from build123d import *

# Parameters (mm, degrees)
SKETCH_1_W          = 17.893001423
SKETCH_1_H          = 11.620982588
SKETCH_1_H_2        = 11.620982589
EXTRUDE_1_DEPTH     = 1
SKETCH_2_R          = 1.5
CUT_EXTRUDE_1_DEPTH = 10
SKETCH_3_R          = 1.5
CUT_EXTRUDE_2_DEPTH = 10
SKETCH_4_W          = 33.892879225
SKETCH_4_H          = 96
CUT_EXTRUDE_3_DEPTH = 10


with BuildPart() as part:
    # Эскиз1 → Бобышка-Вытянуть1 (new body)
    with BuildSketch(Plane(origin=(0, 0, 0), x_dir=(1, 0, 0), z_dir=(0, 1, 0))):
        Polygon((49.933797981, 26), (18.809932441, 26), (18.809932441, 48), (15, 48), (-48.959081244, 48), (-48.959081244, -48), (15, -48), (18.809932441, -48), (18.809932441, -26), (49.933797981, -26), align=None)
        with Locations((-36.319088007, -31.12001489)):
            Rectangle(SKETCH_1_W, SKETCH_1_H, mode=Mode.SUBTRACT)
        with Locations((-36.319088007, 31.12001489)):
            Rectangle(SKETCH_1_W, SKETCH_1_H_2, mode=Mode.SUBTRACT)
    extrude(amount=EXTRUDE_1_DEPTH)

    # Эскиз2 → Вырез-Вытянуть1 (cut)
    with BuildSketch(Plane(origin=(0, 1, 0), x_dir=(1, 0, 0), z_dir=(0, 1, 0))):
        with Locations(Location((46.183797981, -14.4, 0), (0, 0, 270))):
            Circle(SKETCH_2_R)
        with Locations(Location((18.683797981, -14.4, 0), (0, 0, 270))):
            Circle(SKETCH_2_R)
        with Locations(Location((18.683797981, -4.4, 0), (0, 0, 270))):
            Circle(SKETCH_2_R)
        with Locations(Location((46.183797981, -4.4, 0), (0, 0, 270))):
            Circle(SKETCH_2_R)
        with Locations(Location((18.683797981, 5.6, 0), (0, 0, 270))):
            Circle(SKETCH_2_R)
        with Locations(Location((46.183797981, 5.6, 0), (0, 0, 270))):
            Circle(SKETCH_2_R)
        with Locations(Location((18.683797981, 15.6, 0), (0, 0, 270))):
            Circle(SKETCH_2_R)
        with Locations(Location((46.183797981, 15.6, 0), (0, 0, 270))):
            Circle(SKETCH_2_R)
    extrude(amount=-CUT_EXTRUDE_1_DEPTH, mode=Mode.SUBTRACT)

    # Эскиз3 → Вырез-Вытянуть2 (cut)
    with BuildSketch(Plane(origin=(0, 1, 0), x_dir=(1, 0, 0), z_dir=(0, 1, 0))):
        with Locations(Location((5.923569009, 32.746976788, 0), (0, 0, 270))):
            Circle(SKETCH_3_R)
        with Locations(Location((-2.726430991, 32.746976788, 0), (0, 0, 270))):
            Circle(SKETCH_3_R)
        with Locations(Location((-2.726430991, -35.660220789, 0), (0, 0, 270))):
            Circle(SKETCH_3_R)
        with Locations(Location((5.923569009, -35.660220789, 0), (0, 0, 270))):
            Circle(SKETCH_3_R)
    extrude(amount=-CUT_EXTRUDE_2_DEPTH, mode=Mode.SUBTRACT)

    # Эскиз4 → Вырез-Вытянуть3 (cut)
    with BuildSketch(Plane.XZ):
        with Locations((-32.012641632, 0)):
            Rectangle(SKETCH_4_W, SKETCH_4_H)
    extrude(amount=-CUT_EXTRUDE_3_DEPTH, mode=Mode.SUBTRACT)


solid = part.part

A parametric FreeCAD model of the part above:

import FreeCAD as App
import Part
import Sketcher

V = App.Vector
Q = App.Units.Quantity

doc = App.newDocument("Part")
body = doc.addObject("PartDesign::Body", "Body")

sketch1 = body.newObject("Sketcher::SketchObject", "Sketch")
sketch1.AttachmentSupport = (doc.getObject("XZ_Plane"), [""])
sketch1.MapMode = "FlatFace"
sketch1.addGeometry(Part.LineSegment(V(50, -26, 0), V(19, -26, 0)), False)
sketch1.addGeometry(Part.LineSegment(V(19, -26, 0), V(19, -48, 0)), False)
sketch1.addGeometry(Part.LineSegment(V(19, -48, 0), V(-49, -48, 0)), False)
sketch1.addGeometry(Part.LineSegment(V(-49, -48, 0), V(-49, 48, 0)), False)
sketch1.addGeometry(Part.LineSegment(V(-49, 48, 0), V(19, 48, 0)), False)
sketch1.addGeometry(Part.LineSegment(V(19, 48, 0), V(19, 26, 0)), False)
sketch1.addGeometry(Part.LineSegment(V(19, 26, 0), V(50, 26, 0)), False)
sketch1.addGeometry(Part.LineSegment(V(50, 26, 0), V(50, -26, 0)), False)
sketch1.addGeometry(Part.LineSegment(V(-27, 37, 0), V(-45, 37, 0)), False)
sketch1.addGeometry(Part.LineSegment(V(-45, 37, 0), V(-45, 25, 0)), False)
sketch1.addGeometry(Part.LineSegment(V(-45, 25, 0), V(-27, 25, 0)), False)
sketch1.addGeometry(Part.LineSegment(V(-27, 25, 0), V(-27, 37, 0)), False)
sketch1.addGeometry(Part.LineSegment(V(-27, -25, 0), V(-45, -25, 0)), False)
sketch1.addGeometry(Part.LineSegment(V(-45, -25, 0), V(-45, -37, 0)), False)
sketch1.addGeometry(Part.LineSegment(V(-45, -37, 0), V(-27, -37, 0)), False)
sketch1.addGeometry(Part.LineSegment(V(-27, -37, 0), V(-27, -25, 0)), False)
sketch1.addConstraint(Sketcher.Constraint("Coincident", 0, 2, 1, 1))
sketch1.addConstraint(Sketcher.Constraint("Coincident", 1, 2, 2, 1))
sketch1.addConstraint(Sketcher.Constraint("Coincident", 2, 2, 3, 1))
sketch1.addConstraint(Sketcher.Constraint("Coincident", 3, 2, 4, 1))
sketch1.addConstraint(Sketcher.Constraint("Coincident", 4, 2, 5, 1))
sketch1.addConstraint(Sketcher.Constraint("Coincident", 5, 2, 6, 1))
sketch1.addConstraint(Sketcher.Constraint("Coincident", 6, 2, 7, 1))
sketch1.addConstraint(Sketcher.Constraint("Coincident", 7, 2, 0, 1))
sketch1.addConstraint(Sketcher.Constraint("Coincident", 8, 2, 9, 1))
sketch1.addConstraint(Sketcher.Constraint("Coincident", 9, 2, 10, 1))
sketch1.addConstraint(Sketcher.Constraint("Coincident", 10, 2, 11, 1))
sketch1.addConstraint(Sketcher.Constraint("Coincident", 11, 2, 8, 1))
sketch1.addConstraint(Sketcher.Constraint("Coincident", 12, 2, 13, 1))
sketch1.addConstraint(Sketcher.Constraint("Coincident", 13, 2, 14, 1))
sketch1.addConstraint(Sketcher.Constraint("Coincident", 14, 2, 15, 1))
sketch1.addConstraint(Sketcher.Constraint("Coincident", 15, 2, 12, 1))
sketch1.addConstraint(Sketcher.Constraint("Horizontal", 0))
sketch1.addConstraint(Sketcher.Constraint("Vertical", 1))
sketch1.addConstraint(Sketcher.Constraint("Horizontal", 2))
sketch1.addConstraint(Sketcher.Constraint("Vertical", 3))
sketch1.addConstraint(Sketcher.Constraint("Horizontal", 4))
sketch1.addConstraint(Sketcher.Constraint("Vertical", 5))
sketch1.addConstraint(Sketcher.Constraint("Horizontal", 6))
sketch1.addConstraint(Sketcher.Constraint("Vertical", 7))
sketch1.addConstraint(Sketcher.Constraint("Horizontal", 8))
sketch1.addConstraint(Sketcher.Constraint("Vertical", 9))
sketch1.addConstraint(Sketcher.Constraint("Horizontal", 10))
sketch1.addConstraint(Sketcher.Constraint("Vertical", 11))
sketch1.addConstraint(Sketcher.Constraint("Horizontal", 12))
sketch1.addConstraint(Sketcher.Constraint("Vertical", 13))
sketch1.addConstraint(Sketcher.Constraint("Horizontal", 14))
sketch1.addConstraint(Sketcher.Constraint("Vertical", 15))
sketch1.addConstraint(Sketcher.Constraint("Symmetric", 1, 2, 4, 2, -1))
sketch1.addConstraint(Sketcher.Constraint("Symmetric", 9, 2, 12, 2, -1))
sketch1.addConstraint(Sketcher.Constraint("Symmetric", 11, 2, 14, 2, -1))
sketch1.addConstraint(Sketcher.Constraint("Equal", 1, 5))
sketch1.addConstraint(Sketcher.Constraint("DistanceY", 1, 2, 1, 1, Q("22 mm")))
sketch1.addConstraint(Sketcher.Constraint("DistanceY", 3, 1, 3, 2, Q("96 mm")))
sketch1.addConstraint(Sketcher.Constraint("DistanceX", 8, 2, 8, 1, Q("17.893001 mm")))
sketch1.addConstraint(Sketcher.Constraint("DistanceX", 0, 2, 0, 1, Q("31.123866 mm")))
sketch1.addConstraint(Sketcher.Constraint("DistanceX", 2, 2, 2, 1, Q("67.769014 mm")))
sketch1.addConstraint(Sketcher.Constraint("DistanceY", 9, 2, 9, 1, Q("11.620983 mm")))
sketch1.addConstraint(Sketcher.Constraint("DistanceX", 2, 2, -1, 1, Q("48.959081 mm")))
sketch1.addConstraint(Sketcher.Constraint("DistanceX", 8, 2, -1, 1, Q("45.265589 mm")))
sketch1.addConstraint(Sketcher.Constraint("DistanceY", 12, 2, 8, 2, Q("62.24003 mm")))
pad1 = body.newObject("PartDesign::Pad", "Pad")
pad1.Profile = sketch1
pad1.Length = 1
pad1.Reversed = True

sketch2 = body.newObject("Sketcher::SketchObject", "Sketch001")
sketch2.AttachmentSupport = (doc.getObject("XZ_Plane"), [""])
sketch2.MapMode = "FlatFace"
sketch2.AttachmentOffset = App.Placement(V(0, 0, -1), App.Rotation())
sketch2.addGeometry(Part.Circle(V(46.2, 14.4, 0), V(0, 0, 1), 1.5), False)
sketch2.addGeometry(Part.Circle(V(18.7, 14.4, 0), V(0, 0, 1), 1.5), False)
sketch2.addGeometry(Part.Circle(V(18.7, 4.4, 0), V(0, 0, 1), 1.5), False)
sketch2.addGeometry(Part.Circle(V(46.2, 4.4, 0), V(0, 0, 1), 1.5), False)
sketch2.addGeometry(Part.Circle(V(18.7, -5.6, 0), V(0, 0, 1), 1.5), False)
sketch2.addGeometry(Part.Circle(V(46.2, -5.6, 0), V(0, 0, 1), 1.5), False)
sketch2.addGeometry(Part.Circle(V(18.7, -15.6, 0), V(0, 0, 1), 1.5), False)
sketch2.addGeometry(Part.Circle(V(46.2, -15.6, 0), V(0, 0, 1), 1.5), False)
sketch2.addConstraint(Sketcher.Constraint("Equal", 0, 1))
sketch2.addConstraint(Sketcher.Constraint("Equal", 1, 2))
sketch2.addConstraint(Sketcher.Constraint("Equal", 2, 3))
sketch2.addConstraint(Sketcher.Constraint("Equal", 3, 4))
sketch2.addConstraint(Sketcher.Constraint("Equal", 4, 5))
sketch2.addConstraint(Sketcher.Constraint("Equal", 5, 6))
sketch2.addConstraint(Sketcher.Constraint("Equal", 6, 7))
sketch2.addConstraint(Sketcher.Constraint("Horizontal", 0, 3, 1, 3))
sketch2.addConstraint(Sketcher.Constraint("Horizontal", 2, 3, 3, 3))
sketch2.addConstraint(Sketcher.Constraint("Horizontal", 4, 3, 5, 3))
sketch2.addConstraint(Sketcher.Constraint("Horizontal", 6, 3, 7, 3))
sketch2.addConstraint(Sketcher.Constraint("Vertical", 1, 3, 2, 3))
sketch2.addConstraint(Sketcher.Constraint("Vertical", 0, 3, 3, 3))
sketch2.addConstraint(Sketcher.Constraint("Vertical", 2, 3, 4, 3))
sketch2.addConstraint(Sketcher.Constraint("Vertical", 3, 3, 5, 3))
sketch2.addConstraint(Sketcher.Constraint("Vertical", 4, 3, 6, 3))
sketch2.addConstraint(Sketcher.Constraint("Vertical", 5, 3, 7, 3))
sketch2.addConstraint(Sketcher.Constraint("Diameter", 0, Q("3 mm")))
sketch2.addConstraint(Sketcher.Constraint("DistanceY", 2, 3, 1, 3, Q("10 mm")))
sketch2.addConstraint(Sketcher.Constraint("DistanceY", 4, 3, 2, 3, Q("10 mm")))
sketch2.addConstraint(Sketcher.Constraint("DistanceY", 6, 3, 4, 3, Q("10 mm")))
sketch2.addConstraint(Sketcher.Constraint("DistanceY", -1, 1, 0, 3, Q("14.4 mm")))
sketch2.addConstraint(Sketcher.Constraint("DistanceX", 1, 3, 0, 3, Q("27.5 mm")))
sketch2.addConstraint(Sketcher.Constraint("DistanceX", -1, 1, 0, 3, Q("46.183798 mm")))
pocket1 = body.newObject("PartDesign::Pocket", "Pocket")
pocket1.Profile = sketch2
pocket1.Length = 10
pocket1.Reversed = True

sketch3 = body.newObject("Sketcher::SketchObject", "Sketch002")
sketch3.AttachmentSupport = (doc.getObject("XZ_Plane"), [""])
sketch3.MapMode = "FlatFace"
sketch3.AttachmentOffset = App.Placement(V(0, 0, -1), App.Rotation())
sketch3.addGeometry(Part.Circle(V(5.9, -32.7, 0), V(0, 0, 1), 1.5), False)
sketch3.addGeometry(Part.Circle(V(-2.7, -32.7, 0), V(0, 0, 1), 1.5), False)
sketch3.addGeometry(Part.Circle(V(-2.7, 35.7, 0), V(0, 0, 1), 1.5), False)
sketch3.addGeometry(Part.Circle(V(5.9, 35.7, 0), V(0, 0, 1), 1.5), False)
sketch3.addConstraint(Sketcher.Constraint("Equal", 0, 1))
sketch3.addConstraint(Sketcher.Constraint("Equal", 1, 2))
sketch3.addConstraint(Sketcher.Constraint("Equal", 2, 3))
sketch3.addConstraint(Sketcher.Constraint("Horizontal", 0, 3, 1, 3))
sketch3.addConstraint(Sketcher.Constraint("Horizontal", 2, 3, 3, 3))
sketch3.addConstraint(Sketcher.Constraint("Vertical", 1, 3, 2, 3))
sketch3.addConstraint(Sketcher.Constraint("Vertical", 0, 3, 3, 3))
sketch3.addConstraint(Sketcher.Constraint("Diameter", 0, Q("3 mm")))
sketch3.addConstraint(Sketcher.Constraint("DistanceX", 1, 3, 0, 3, Q("8.65 mm")))
sketch3.addConstraint(Sketcher.Constraint("DistanceX", -1, 1, 0, 3, Q("5.923569 mm")))
sketch3.addConstraint(Sketcher.Constraint("DistanceY", -1, 1, 2, 3, Q("35.660221 mm")))
sketch3.addConstraint(Sketcher.Constraint("DistanceY", 0, 3, -1, 1, Q("32.746977 mm")))
pocket2 = body.newObject("PartDesign::Pocket", "Pocket001")
pocket2.Profile = sketch3
pocket2.Length = 10
pocket2.Reversed = True

sketch4 = body.newObject("Sketcher::SketchObject", "Sketch003")
sketch4.AttachmentSupport = (doc.getObject("XZ_Plane"), [""])
sketch4.MapMode = "FlatFace"
sketch4.addGeometry(Part.LineSegment(V(-49, 48, 0), V(-49, -48, 0)), False)
sketch4.addGeometry(Part.LineSegment(V(-49, -48, 0), V(-15, -48, 0)), False)
sketch4.addGeometry(Part.LineSegment(V(-15, -48, 0), V(-15, 48, 0)), False)
sketch4.addGeometry(Part.LineSegment(V(-15, 48, 0), V(-49, 48, 0)), False)
sketch4.addConstraint(Sketcher.Constraint("Coincident", 0, 2, 1, 1))
sketch4.addConstraint(Sketcher.Constraint("Coincident", 1, 2, 2, 1))
sketch4.addConstraint(Sketcher.Constraint("Coincident", 2, 2, 3, 1))
sketch4.addConstraint(Sketcher.Constraint("Coincident", 3, 2, 0, 1))
sketch4.addConstraint(Sketcher.Constraint("Vertical", 0))
sketch4.addConstraint(Sketcher.Constraint("Horizontal", 1))
sketch4.addConstraint(Sketcher.Constraint("Vertical", 2))
sketch4.addConstraint(Sketcher.Constraint("Horizontal", 3))
sketch4.addConstraint(Sketcher.Constraint("DistanceY", 0, 2, 0, 1, Q("96 mm")))
sketch4.addConstraint(Sketcher.Constraint("DistanceY", 0, 2, -1, 1, Q("48 mm")))
sketch4.addConstraint(Sketcher.Constraint("DistanceX", 1, 1, 1, 2, Q("33.892879 mm")))
sketch4.addConstraint(Sketcher.Constraint("DistanceX", 0, 2, -1, 1, Q("48.959081 mm")))
pocket3 = body.newObject("PartDesign::Pocket", "Pocket002")
pocket3.Profile = sketch4
pocket3.Length = 10

doc.recompute()
